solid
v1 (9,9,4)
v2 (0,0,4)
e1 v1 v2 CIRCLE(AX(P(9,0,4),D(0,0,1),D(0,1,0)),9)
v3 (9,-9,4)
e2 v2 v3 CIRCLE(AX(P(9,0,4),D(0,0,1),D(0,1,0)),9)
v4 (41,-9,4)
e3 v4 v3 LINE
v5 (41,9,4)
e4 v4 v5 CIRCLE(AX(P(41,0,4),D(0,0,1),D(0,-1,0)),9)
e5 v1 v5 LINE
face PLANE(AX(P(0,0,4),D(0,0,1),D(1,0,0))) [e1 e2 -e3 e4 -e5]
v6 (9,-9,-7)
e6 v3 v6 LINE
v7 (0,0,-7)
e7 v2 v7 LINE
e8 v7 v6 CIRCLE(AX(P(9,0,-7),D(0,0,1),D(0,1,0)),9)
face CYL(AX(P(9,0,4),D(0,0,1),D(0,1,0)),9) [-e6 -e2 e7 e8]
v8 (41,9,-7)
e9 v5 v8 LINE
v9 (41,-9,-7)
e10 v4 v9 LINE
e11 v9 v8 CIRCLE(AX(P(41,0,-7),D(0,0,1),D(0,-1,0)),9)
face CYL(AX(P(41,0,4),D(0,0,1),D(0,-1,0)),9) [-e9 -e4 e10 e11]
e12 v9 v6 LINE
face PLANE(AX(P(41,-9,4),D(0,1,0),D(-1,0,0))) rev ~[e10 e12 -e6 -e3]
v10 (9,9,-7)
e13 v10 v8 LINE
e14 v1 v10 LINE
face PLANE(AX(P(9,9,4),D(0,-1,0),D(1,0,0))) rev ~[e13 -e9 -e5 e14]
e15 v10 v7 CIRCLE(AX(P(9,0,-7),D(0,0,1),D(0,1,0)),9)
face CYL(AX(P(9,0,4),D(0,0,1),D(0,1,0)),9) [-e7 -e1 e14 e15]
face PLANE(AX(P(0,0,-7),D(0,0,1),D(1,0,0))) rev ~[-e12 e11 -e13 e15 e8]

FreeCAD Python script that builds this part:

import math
import FreeCAD as App
import Part
import Sketcher
from FreeCAD import Vector

doc = App.newDocument("Part")
body = doc.addObject("PartDesign::Body", "Body")

sketch1 = body.newObject("Sketcher::SketchObject", "Sketch")
sketch1.AttachmentSupport = (doc.getObject("XY_Plane"), [""])
sketch1.MapMode = "FlatFace"
sketch1.AttachmentOffset = App.Placement(Vector(0, 0, 4), App.Rotation())
sketch1.addGeometry([
    Part.LineSegment(Vector(41, 9, 0), Vector(9, 9, 0)),
    Part.ArcOfCircle(Part.Circle(Vector(9, 0, 0), Vector(0, 0, 1), 9), math.radians(90), math.radians(270)),
    Part.LineSegment(Vector(9, -9, 0), Vector(41, -9, 0)),
    Part.ArcOfCircle(Part.Circle(Vector(41, 0, 0), Vector(0, 0, 1), 9), math.radians(-90), math.radians(90)),
], False)
sketch1.addConstraint([
    Sketcher.Constraint("Tangent", 0, 2, 1, 1),
    Sketcher.Constraint("Tangent", 1, 2, 2, 1),
    Sketcher.Constraint("Tangent", 2, 2, 3, 1),
    Sketcher.Constraint("Tangent", 3, 2, 0, 1),
    Sketcher.Constraint("Horizontal", 0),
    Sketcher.Constraint("Horizontal", 2),
    Sketcher.Constraint("PointOnObject", 1, 3, -1),
    Sketcher.Constraint("Radius", 1, 9.0),
    Sketcher.Constraint("DistanceX", -1, 1, 1, 3, 9.0),
    Sketcher.Constraint("DistanceX", 0, 2, 0, 1, 32.0),
])
pad1 = body.newObject("PartDesign::Pad", "Pad")
pad1.Profile = sketch1
pad1.Length = 11
pad1.Reversed = True

doc.recompute()
